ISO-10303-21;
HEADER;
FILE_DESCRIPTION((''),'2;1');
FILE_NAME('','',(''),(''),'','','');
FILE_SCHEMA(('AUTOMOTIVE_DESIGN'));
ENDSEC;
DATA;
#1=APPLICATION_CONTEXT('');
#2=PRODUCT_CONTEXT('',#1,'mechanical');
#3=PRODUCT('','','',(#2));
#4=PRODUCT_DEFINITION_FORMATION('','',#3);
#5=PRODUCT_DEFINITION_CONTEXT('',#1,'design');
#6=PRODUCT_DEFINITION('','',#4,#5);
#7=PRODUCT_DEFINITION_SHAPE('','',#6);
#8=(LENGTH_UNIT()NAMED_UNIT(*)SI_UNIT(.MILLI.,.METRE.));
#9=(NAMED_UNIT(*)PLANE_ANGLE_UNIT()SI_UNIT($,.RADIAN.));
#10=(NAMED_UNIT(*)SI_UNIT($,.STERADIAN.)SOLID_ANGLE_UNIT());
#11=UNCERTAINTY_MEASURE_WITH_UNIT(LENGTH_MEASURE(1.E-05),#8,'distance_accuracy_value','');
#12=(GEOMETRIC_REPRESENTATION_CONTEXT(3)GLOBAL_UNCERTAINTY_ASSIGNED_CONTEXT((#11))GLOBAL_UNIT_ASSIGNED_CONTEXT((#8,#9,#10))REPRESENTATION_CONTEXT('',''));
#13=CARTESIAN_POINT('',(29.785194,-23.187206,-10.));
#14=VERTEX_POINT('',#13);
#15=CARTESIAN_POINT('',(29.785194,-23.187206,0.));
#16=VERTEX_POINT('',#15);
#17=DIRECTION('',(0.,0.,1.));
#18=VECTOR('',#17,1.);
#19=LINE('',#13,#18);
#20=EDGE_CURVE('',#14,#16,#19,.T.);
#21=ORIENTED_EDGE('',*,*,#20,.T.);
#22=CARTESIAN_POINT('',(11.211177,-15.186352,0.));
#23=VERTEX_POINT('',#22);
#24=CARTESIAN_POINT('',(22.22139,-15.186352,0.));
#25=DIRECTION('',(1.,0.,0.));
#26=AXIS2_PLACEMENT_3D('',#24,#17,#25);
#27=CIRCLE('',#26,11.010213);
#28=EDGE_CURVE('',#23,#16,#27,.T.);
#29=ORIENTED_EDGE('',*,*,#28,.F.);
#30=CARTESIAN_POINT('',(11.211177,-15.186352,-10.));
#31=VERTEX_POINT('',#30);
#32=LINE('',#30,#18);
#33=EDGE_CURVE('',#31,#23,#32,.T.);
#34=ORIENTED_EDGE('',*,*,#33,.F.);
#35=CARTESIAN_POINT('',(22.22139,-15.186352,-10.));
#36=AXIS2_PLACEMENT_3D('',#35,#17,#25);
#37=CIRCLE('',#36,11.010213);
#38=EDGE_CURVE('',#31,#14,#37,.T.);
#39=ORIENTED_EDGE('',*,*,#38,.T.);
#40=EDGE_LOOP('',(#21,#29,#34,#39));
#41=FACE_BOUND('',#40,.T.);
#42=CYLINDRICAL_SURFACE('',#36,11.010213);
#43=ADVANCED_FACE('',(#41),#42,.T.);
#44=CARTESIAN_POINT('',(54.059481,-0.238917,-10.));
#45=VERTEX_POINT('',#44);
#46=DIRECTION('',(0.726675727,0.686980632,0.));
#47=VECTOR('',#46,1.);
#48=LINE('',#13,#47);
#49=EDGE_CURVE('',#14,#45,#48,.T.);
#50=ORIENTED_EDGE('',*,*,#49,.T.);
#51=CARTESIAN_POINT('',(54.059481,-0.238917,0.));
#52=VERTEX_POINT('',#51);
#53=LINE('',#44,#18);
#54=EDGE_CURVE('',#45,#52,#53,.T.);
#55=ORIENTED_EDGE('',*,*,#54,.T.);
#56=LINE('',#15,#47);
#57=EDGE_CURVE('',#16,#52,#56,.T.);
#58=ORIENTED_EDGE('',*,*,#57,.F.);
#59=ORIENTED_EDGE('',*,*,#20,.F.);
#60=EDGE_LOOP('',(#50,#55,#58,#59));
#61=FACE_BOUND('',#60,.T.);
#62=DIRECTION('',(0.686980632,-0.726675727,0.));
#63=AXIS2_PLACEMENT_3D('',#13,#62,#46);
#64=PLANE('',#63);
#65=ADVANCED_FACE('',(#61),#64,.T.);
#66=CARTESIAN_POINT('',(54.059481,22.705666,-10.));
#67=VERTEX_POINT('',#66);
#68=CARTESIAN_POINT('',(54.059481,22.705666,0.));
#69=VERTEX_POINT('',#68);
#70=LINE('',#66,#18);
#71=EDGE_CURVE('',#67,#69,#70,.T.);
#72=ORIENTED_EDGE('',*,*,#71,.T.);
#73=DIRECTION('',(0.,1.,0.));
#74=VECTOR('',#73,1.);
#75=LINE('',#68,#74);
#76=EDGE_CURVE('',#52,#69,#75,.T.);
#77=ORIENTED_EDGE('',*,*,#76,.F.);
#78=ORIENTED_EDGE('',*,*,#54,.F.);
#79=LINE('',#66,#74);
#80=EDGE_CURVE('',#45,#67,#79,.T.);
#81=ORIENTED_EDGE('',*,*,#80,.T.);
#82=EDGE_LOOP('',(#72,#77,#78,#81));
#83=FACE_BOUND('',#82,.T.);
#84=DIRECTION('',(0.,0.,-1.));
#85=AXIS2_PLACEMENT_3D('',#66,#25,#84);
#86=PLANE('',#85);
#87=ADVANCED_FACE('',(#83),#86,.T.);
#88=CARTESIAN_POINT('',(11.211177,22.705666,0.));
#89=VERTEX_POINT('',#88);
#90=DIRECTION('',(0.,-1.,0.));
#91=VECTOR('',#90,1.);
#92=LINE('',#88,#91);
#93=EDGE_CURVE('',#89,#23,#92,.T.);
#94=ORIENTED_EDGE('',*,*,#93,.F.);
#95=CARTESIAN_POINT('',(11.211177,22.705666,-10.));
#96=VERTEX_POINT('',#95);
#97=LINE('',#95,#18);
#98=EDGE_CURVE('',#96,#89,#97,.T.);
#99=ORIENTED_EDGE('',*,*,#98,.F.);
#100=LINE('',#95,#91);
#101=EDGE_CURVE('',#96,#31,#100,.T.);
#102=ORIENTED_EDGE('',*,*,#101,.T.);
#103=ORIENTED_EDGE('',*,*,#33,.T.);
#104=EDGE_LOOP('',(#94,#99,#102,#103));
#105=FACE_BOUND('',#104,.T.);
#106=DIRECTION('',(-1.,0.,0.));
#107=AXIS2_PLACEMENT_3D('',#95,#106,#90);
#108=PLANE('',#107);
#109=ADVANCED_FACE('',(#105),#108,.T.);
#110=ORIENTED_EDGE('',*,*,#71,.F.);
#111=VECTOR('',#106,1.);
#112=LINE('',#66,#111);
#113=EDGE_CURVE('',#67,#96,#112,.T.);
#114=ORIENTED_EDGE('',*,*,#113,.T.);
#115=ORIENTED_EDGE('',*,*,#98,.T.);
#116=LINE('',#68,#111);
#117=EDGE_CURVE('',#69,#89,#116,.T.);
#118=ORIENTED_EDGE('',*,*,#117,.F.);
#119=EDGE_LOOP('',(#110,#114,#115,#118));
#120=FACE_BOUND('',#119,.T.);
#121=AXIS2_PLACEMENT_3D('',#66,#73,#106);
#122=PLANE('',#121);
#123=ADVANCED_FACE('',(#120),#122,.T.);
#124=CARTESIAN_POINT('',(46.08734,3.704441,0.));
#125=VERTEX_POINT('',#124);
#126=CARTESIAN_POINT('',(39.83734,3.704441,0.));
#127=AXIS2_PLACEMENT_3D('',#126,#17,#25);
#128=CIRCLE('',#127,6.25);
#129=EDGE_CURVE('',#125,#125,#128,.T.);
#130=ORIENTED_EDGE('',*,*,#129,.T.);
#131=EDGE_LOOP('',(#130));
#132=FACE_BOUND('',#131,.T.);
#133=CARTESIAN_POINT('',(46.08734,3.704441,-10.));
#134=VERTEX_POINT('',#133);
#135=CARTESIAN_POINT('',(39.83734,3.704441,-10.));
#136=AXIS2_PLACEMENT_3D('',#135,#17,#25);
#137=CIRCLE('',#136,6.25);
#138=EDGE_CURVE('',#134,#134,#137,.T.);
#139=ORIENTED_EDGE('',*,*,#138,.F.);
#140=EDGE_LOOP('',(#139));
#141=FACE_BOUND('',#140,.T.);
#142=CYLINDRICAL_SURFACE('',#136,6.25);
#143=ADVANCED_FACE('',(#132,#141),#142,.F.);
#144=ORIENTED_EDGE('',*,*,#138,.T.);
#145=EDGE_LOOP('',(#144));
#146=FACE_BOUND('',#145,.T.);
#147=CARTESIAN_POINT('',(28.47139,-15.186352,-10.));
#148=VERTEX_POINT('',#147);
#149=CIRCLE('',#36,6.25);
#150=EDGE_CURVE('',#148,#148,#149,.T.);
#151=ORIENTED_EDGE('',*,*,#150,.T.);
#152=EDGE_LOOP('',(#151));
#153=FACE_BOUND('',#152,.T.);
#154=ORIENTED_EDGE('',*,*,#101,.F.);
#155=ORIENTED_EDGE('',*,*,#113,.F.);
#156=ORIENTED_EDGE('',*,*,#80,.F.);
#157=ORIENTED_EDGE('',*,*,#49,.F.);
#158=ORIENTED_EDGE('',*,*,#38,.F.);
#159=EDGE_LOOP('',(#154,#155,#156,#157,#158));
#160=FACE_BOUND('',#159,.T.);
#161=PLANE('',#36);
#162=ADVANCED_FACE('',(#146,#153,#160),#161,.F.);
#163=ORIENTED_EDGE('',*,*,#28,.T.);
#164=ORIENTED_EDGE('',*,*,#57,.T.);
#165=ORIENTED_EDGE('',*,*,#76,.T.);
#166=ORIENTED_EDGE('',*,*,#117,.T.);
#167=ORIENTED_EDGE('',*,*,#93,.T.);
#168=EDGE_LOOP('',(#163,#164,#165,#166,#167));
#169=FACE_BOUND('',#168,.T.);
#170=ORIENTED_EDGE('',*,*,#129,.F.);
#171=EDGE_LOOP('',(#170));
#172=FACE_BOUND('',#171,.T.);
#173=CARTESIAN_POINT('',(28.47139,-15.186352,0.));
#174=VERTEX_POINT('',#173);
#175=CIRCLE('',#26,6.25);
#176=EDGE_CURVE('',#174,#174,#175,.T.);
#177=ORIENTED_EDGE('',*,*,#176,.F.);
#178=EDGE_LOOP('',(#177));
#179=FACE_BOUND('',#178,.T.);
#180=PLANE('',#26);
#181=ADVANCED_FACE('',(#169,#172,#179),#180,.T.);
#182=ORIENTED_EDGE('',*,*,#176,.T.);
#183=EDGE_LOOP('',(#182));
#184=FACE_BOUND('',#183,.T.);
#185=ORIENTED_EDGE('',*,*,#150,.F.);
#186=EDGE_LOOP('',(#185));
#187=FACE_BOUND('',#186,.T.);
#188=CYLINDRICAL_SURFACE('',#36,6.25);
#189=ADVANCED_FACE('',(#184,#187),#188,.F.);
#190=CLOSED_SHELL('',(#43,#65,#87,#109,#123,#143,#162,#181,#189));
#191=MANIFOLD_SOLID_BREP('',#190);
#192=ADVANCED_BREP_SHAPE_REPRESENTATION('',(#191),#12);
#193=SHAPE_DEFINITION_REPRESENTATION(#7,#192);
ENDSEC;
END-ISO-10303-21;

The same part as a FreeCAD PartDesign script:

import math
import FreeCAD as App
import Part
import Sketcher
Q = App.Units.Quantity

doc = App.newDocument("Part")
body = doc.addObject("PartDesign::Body", "Body")

# Sketch on XY plane
sketch1 = body.newObject("Sketcher::SketchObject", "Sketch")
sketch1.AttachmentSupport = (doc.getObject("XY_Plane"), [""])
sketch1.MapMode = "FlatFace"
sketch1.addGeometry(Part.LineSegment(App.Vector(30, -23, 0), App.Vector(54, 0, 0)), False)
sketch1.addGeometry(Part.LineSegment(App.Vector(54, 0, 0), App.Vector(54, 23, 0)), False)
sketch1.addGeometry(Part.LineSegment(App.Vector(54, 23, 0), App.Vector(11, 23, 0)), False)
sketch1.addGeometry(Part.LineSegment(App.Vector(11, 23, 0), App.Vector(11, -15, 0)), False)
sketch1.addGeometry(Part.ArcOfCircle(Part.Circle(App.Vector(22, -15, 0), App.Vector(0, 0, 1), 11), math.radians(180), math.radians(313)), False)
sketch1.addGeometry(Part.Circle(App.Vector(22, -15, 0), App.Vector(0, 0, 1), 6), False)
sketch1.addGeometry(Part.Circle(App.Vector(40, 4, 0), App.Vector(0, 0, 1), 6), False)
sketch1.addConstraint(Sketcher.Constraint("Coincident", 0, 2, 1, 1))
sketch1.addConstraint(Sketcher.Constraint("Coincident", 1, 2, 2, 1))
sketch1.addConstraint(Sketcher.Constraint("Coincident", 2, 2, 3, 1))
sketch1.addConstraint(Sketcher.Constraint("Tangent", 3, 2, 4, 1))
sketch1.addConstraint(Sketcher.Constraint("Tangent", 4, 2, 0, 1))
sketch1.addConstraint(Sketcher.Constraint("Vertical", 1))
sketch1.addConstraint(Sketcher.Constraint("Horizontal", 2))
sketch1.addConstraint(Sketcher.Constraint("Vertical", 3))
sketch1.addConstraint(Sketcher.Constraint("Coincident", 5, 3, 4, 3))
sketch1.addConstraint(Sketcher.Constraint("Equal", 5, 6))
sketch1.addConstraint(Sketcher.Constraint("Diameter", 5, Q("12.5 mm")))
sketch1.addConstraint(Sketcher.Constraint("Radius", 4, Q("11.010213 mm")))
sketch1.addConstraint(Sketcher.Constraint("DistanceX", 2, 2, 2, 1, Q("42.848303 mm")))
sketch1.addConstraint(Sketcher.Constraint("DistanceY", 1, 1, 1, 2, Q("22.944583 mm")))
sketch1.addConstraint(Sketcher.Constraint("DistanceY", 3, 2, 3, 1, Q("37.892018 mm")))
sketch1.addConstraint(Sketcher.Constraint("DistanceX", -1, 1, 4, 3, Q("22.22139 mm")))
sketch1.addConstraint(Sketcher.Constraint("DistanceY", 4, 3, -1, 1, Q("15.186352 mm")))
sketch1.addConstraint(Sketcher.Constraint("DistanceX", -1, 1, 6, 3, Q("39.83734 mm")))
sketch1.addConstraint(Sketcher.Constraint("DistanceY", -1, 1, 6, 3, Q("3.704441 mm")))
pad1 = body.newObject("PartDesign::Pad", "Pad")
pad1.Profile = sketch1
pad1.Length = 10
pad1.Reversed = True

doc.recompute()
